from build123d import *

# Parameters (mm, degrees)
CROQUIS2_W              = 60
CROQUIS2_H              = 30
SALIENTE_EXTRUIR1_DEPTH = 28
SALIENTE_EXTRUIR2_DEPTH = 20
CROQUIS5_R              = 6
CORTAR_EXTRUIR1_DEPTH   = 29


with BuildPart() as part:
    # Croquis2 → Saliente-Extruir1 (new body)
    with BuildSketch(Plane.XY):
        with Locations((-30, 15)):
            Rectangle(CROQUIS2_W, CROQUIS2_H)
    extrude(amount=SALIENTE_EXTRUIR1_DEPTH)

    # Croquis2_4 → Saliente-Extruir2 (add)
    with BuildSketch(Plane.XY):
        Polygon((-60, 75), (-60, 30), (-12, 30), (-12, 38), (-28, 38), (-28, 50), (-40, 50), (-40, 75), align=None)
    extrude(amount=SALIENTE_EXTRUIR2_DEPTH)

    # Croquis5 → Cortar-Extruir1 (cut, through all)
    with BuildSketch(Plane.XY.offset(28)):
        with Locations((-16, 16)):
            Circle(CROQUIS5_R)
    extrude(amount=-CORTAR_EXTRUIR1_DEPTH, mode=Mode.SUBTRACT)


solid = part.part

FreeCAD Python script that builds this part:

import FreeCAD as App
import Part
import Sketcher

V = App.Vector
Q = App.Units.Quantity


def add_polygon(sketch, points):
    """Adds a closed chain of lines whose ends are joined by coincident constraints."""
    first, n = sketch.GeometryCount, len(points)
    for a, b in zip(points, points[1:] + points[:1]):
        sketch.addGeometry(Part.LineSegment(App.Vector(*a, 0), App.Vector(*b, 0)), False)
    for i in range(n):
        sketch.addConstraint(Sketcher.Constraint("Coincident", first + i, 2, first + (i + 1) % n, 1))

doc = App.newDocument("Part")
body = doc.addObject("PartDesign::Body", "Body")

sketch1 = body.newObject("Sketcher::SketchObject", "Sketch")
sketch1.AttachmentSupport = (doc.getObject("XY_Plane"), [""])
sketch1.MapMode = "FlatFace"
add_polygon(sketch1, [(-60, 30), (-60, 0), (0, 0), (0, 30)])
sketch1.addConstraint([
    Sketcher.Constraint("Vertical", 0),
    Sketcher.Constraint("Horizontal", 1),
    Sketcher.Constraint("Vertical", 2),
    Sketcher.Constraint("Horizontal", 3),
    Sketcher.Constraint("Coincident", 1, 2, -1, 1),
    Sketcher.Constraint("DistanceX", 1, 1, 1, 2, Q("60 mm")),
    Sketcher.Constraint("DistanceY", 0, 2, 0, 1, Q("30 mm")),
])
pad1 = body.newObject("PartDesign::Pad", "Pad")
pad1.Profile = sketch1
pad1.Length = 28

sketch2 = body.newObject("Sketcher::SketchObject", "Sketch001")
sketch2.AttachmentSupport = (doc.getObject("XY_Plane"), [""])
sketch2.MapMode = "FlatFace"
add_polygon(sketch2, [(-60, 75), (-60, 30), (-12, 30), (-12, 38), (-28, 38), (-28, 50), (-40, 50), (-40, 75)])
sketch2.addConstraint([
    Sketcher.Constraint("Vertical", 0),
    Sketcher.Constraint("Horizontal", 1),
    Sketcher.Constraint("Vertical", 2),
    Sketcher.Constraint("Horizontal", 3),
    Sketcher.Constraint("Vertical", 4),
    Sketcher.Constraint("Horizontal", 5),
    Sketcher.Constraint("Vertical", 6),
    Sketcher.Constraint("Horizontal", 7),
    Sketcher.Constraint("Equal", 5, 4),
    Sketcher.Constraint("DistanceX", 1, 1, 1, 2, Q("48 mm")),
    Sketcher.Constraint("DistanceX", 3, 2, 3, 1, Q("16 mm")),
    Sketcher.Constraint("DistanceX", 5, 2, 5, 1, Q("12 mm")),
    Sketcher.Constraint("DistanceY", 0, 2, 0, 1, Q("45 mm")),
    Sketcher.Constraint("DistanceY", 2, 1, 2, 2, Q("8 mm")),
    Sketcher.Constraint("DistanceX", 0, 2, -1, 1, Q("60 mm")),
    Sketcher.Constraint("DistanceY", -1, 1, 0, 2, Q("30 mm")),
])
pad2 = body.newObject("PartDesign::Pad", "Pad001")
pad2.Profile = sketch2
pad2.Length = 20

sketch3 = body.newObject("Sketcher::SketchObject", "Sketch002")
sketch3.AttachmentSupport = (doc.getObject("XY_Plane"), [""])
sketch3.MapMode = "FlatFace"
sketch3.AttachmentOffset = App.Placement(V(0, 0, 28), App.Rotation())
sketch3.addGeometry(Part.Circle(V(-16, 16, 0), V(0, 0, 1), 6), False)
sketch3.addConstraint([
    Sketcher.Constraint("Diameter", 0, Q("12 mm")),
    Sketcher.Constraint("DistanceX", 0, 3, -1, 1, Q("16 mm")),
    Sketcher.Constraint("DistanceY", -1, 1, 0, 3, Q("16 mm")),
])
pocket1 = body.newObject("PartDesign::Pocket", "Pocket")
pocket1.Profile = sketch3
pocket1.Type = "ThroughAll"

doc.recompute()
